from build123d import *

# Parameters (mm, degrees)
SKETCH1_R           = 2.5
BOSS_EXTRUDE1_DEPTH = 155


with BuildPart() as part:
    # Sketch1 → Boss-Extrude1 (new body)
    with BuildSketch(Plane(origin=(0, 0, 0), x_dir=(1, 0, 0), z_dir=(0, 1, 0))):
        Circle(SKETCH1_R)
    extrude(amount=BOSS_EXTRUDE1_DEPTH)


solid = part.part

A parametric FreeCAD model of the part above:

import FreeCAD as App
import Part
import Sketcher

V = App.Vector
Q = App.Units.Quantity

doc = App.newDocument("Part")
params = doc.addObject("Spreadsheet::Sheet", "Params")
for row, (alias, value) in enumerate([
    ("sketch1_diameter", "5 mm"),
    ("pad1_length", "155 mm"),
], start=1):
    params.set(f"A{row}", alias)
    params.set(f"B{row}", "=" + value)
    params.setAlias(f"B{row}", alias)

body = doc.addObject("PartDesign::Body", "Body")

sketch1 = body.newObject("Sketcher::SketchObject", "Sketch")
sketch1.AttachmentSupport = (doc.getObject("XZ_Plane"), [""])
sketch1.MapMode = "FlatFace"
sketch1.addGeometry(Part.Circle(V(0, 0, 0), V(0, 0, 1), 2.5), False)
sketch1.addConstraint(Sketcher.Constraint("Coincident", 0, 3, -1, 1))
sketch1.addConstraint(Sketcher.Constraint("Diameter", 0, Q("5 mm")))
sketch1.setExpression("Constraints[1]", "Params.sketch1_diameter")
pad1 = body.newObject("PartDesign::Pad", "Pad")
pad1.Profile = sketch1
pad1.setExpression("Length", "Params.pad1_length")
pad1.Reversed = True

doc.recompute()
